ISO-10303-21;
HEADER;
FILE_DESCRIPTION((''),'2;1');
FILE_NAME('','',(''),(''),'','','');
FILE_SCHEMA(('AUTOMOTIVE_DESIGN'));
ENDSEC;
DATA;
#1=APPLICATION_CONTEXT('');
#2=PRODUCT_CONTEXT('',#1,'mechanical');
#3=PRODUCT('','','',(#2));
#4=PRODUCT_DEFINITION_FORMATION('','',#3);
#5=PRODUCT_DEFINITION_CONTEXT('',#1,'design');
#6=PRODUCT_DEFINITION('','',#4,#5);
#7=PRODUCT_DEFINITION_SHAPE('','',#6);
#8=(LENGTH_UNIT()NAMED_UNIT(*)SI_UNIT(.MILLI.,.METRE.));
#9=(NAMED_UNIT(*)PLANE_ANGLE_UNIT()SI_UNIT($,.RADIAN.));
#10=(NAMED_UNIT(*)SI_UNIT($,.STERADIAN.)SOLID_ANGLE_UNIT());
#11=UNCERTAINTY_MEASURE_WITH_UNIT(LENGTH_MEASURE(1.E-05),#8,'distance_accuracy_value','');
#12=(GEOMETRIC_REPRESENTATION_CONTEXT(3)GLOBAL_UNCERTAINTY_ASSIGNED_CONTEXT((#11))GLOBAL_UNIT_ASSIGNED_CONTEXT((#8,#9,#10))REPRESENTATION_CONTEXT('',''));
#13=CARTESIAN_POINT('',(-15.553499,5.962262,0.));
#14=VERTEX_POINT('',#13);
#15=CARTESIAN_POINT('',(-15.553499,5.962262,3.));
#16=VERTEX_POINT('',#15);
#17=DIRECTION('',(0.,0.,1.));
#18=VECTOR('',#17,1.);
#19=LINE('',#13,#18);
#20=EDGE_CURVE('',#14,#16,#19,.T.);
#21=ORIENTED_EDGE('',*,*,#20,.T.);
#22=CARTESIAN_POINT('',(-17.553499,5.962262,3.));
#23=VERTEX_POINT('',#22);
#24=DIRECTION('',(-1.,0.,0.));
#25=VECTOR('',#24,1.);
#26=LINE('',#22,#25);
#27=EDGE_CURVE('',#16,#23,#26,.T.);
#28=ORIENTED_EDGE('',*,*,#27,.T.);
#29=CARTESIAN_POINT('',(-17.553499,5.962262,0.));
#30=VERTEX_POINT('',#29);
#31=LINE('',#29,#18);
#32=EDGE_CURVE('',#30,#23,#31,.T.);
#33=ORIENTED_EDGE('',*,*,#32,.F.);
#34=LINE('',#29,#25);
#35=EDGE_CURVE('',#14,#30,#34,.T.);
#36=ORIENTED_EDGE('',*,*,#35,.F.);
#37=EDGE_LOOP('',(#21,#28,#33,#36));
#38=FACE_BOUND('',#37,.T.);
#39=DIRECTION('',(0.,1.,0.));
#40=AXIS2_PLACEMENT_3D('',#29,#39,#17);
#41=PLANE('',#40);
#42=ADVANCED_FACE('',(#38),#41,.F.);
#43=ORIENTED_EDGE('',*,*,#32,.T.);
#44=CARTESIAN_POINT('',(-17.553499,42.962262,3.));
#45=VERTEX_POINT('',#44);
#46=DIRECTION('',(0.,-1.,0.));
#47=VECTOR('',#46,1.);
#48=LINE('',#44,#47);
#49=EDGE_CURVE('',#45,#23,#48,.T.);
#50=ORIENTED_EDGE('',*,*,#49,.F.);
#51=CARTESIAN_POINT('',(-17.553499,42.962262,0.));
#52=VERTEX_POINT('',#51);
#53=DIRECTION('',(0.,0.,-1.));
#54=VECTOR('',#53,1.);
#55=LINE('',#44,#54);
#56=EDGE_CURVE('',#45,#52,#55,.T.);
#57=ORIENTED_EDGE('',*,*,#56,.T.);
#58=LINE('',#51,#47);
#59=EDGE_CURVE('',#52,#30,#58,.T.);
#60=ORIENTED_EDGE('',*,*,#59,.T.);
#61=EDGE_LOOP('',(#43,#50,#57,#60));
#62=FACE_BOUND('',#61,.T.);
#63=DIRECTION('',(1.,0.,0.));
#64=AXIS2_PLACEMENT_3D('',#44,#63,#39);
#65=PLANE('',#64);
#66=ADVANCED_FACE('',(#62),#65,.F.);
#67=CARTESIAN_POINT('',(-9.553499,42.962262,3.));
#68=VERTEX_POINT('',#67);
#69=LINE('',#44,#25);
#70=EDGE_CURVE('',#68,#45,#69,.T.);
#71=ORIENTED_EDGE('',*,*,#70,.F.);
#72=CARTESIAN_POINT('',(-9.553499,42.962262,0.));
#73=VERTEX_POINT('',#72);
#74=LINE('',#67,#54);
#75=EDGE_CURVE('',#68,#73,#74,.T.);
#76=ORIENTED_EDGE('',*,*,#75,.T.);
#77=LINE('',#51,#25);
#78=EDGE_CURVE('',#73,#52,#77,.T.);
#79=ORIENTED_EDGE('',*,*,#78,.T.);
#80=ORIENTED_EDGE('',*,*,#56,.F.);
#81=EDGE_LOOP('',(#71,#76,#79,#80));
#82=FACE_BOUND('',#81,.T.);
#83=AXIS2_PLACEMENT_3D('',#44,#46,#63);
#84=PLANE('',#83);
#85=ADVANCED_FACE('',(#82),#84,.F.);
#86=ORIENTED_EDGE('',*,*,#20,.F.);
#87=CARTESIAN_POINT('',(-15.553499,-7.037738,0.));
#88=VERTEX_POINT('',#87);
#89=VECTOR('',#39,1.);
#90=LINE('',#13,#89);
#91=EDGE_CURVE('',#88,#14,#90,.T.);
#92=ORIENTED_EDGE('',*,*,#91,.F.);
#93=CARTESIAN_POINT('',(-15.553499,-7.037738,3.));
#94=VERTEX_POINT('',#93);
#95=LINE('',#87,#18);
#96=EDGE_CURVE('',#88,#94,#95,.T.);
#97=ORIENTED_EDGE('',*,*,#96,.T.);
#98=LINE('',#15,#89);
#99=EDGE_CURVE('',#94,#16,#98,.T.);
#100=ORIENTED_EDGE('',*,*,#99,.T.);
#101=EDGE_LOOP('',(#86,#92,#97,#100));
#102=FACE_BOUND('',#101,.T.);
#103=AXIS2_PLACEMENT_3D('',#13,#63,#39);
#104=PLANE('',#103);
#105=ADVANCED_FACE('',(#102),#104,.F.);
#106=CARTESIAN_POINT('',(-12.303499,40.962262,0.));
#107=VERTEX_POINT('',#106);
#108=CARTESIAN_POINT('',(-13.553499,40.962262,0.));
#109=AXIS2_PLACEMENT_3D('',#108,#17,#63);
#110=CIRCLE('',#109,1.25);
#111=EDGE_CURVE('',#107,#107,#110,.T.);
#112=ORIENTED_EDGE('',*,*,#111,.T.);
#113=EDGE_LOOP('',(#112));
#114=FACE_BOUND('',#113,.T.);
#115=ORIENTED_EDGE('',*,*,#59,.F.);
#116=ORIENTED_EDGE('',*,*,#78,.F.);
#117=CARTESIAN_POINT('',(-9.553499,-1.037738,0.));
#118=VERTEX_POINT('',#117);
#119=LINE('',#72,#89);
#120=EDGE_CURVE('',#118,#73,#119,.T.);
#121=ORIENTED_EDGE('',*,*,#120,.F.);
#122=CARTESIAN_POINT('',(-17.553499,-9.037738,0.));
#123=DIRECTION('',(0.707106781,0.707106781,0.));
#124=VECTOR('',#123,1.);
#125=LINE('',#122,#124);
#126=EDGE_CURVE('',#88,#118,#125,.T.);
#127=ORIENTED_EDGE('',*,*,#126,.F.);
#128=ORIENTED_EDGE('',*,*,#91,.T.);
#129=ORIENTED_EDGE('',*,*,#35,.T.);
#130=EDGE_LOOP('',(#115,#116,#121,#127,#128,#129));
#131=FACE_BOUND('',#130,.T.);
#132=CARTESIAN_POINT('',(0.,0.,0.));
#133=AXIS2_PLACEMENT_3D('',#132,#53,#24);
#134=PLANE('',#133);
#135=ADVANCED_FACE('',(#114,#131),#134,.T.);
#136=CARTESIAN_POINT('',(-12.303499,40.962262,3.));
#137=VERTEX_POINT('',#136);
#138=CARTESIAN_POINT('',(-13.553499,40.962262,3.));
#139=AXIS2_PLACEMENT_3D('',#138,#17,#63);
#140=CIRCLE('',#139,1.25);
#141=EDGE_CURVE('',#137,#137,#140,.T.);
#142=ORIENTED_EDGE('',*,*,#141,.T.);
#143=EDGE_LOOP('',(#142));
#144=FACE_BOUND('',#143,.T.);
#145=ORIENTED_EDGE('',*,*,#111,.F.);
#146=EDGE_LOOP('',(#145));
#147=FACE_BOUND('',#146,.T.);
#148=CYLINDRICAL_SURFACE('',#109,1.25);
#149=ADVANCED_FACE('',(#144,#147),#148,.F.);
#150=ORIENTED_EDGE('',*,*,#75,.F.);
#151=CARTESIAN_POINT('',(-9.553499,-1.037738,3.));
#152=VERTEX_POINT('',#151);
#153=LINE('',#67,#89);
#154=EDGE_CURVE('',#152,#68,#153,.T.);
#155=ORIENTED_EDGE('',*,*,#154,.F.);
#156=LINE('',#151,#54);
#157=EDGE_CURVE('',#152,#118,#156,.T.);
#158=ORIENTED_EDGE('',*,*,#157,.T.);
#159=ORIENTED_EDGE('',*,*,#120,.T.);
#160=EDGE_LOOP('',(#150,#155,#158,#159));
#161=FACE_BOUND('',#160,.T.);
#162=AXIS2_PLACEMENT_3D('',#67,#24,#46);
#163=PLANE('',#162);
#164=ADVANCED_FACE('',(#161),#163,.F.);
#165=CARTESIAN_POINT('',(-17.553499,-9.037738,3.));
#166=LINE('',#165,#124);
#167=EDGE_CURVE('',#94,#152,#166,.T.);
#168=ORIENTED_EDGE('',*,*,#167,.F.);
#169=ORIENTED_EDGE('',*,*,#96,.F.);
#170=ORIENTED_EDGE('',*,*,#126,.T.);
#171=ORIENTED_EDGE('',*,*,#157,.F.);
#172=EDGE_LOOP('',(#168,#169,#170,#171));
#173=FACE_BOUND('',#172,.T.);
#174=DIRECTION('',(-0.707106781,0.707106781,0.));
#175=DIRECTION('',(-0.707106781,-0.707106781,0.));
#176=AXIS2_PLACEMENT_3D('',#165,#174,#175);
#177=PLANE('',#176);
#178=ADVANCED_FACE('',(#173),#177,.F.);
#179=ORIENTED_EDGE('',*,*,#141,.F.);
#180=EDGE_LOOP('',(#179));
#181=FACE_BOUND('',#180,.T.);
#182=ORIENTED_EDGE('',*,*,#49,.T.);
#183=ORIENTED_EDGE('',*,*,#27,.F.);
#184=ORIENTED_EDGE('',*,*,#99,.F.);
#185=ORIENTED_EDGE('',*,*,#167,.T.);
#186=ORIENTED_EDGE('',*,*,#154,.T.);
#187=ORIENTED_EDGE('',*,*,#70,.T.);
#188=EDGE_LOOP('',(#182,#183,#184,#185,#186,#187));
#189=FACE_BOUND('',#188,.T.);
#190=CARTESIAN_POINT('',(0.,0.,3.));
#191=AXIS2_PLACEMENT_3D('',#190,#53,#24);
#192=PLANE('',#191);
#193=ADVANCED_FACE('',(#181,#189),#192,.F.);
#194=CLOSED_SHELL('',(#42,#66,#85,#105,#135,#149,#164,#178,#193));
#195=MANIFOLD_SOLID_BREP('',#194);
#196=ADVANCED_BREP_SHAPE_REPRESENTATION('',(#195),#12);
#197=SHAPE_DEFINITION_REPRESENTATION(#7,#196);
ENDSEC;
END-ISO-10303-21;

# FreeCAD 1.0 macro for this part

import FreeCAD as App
import Part
import Sketcher

V = App.Vector
Q = App.Units.Quantity


def add_polygon(sketch, points):
    """Adds a closed chain of lines whose ends are joined by coincident constraints."""
    first, n = sketch.GeometryCount, len(points)
    for a, b in zip(points, points[1:] + points[:1]):
        sketch.addGeometry(Part.LineSegment(App.Vector(*a, 0), App.Vector(*b, 0)), False)
    for i in range(n):
        sketch.addConstraint(Sketcher.Constraint("Coincident", first + i, 2, first + (i + 1) % n, 1))

doc = App.newDocument("Part")
body = doc.addObject("PartDesign::Body", "Body")

sketch1 = doc.addObject("Sketcher::SketchObject", "Sketch")
body.addObject(sketch1)
sketch1.AttachmentSupport = (doc.XY_Plane, [""])
sketch1.MapMode = "FlatFace"
add_polygon(sketch1, [(-10, -1), (-10, 43), (-18, 43), (-18, -9)])
sketch1.addConstraint([
    Sketcher.Constraint("Vertical", 0),
    Sketcher.Constraint("Horizontal", 1),
    Sketcher.Constraint("Vertical", 2),
    Sketcher.Constraint("DistanceX", 1, 2, 1, 1, Q("8 mm")),
    Sketcher.Constraint("DistanceY", 0, 1, 0, 2, Q("44 mm")),
    Sketcher.Constraint("DistanceY", 2, 2, 2, 1, Q("52 mm")),
    Sketcher.Constraint("DistanceX", 0, 2, -1, 1, Q("9.553499 mm")),
    Sketcher.Constraint("DistanceY", -1, 1, 0, 2, Q("42.962262 mm")),
])
pad1 = doc.addObject("PartDesign::Pad", "Pad")
body.addObject(pad1)
pad1.Profile = sketch1
pad1.Length = 3

sketch2 = doc.addObject("Sketcher::SketchObject", "Sketch001")
body.addObject(sketch2)
sketch2.AttachmentSupport = (doc.XY_Plane, [""])
sketch2.MapMode = "FlatFace"
sketch2.AttachmentOffset = App.Placement(V(0, 0, 3), App.Rotation())
sketch2.addGeometry(Part.Circle(V(-13.6, 41, 0), V(0, 0, 1), 1.2), False)
add_polygon(sketch2, [(-17.6, 6), (-17.6, -9), (-15.6, -7), (-15.6, 6)])
sketch2.addConstraint([
    Sketcher.Constraint("Vertical", 1),
    Sketcher.Constraint("Vertical", 3),
    Sketcher.Constraint("Horizontal", 4),
    Sketcher.Constraint("Diameter", 0, Q("2.5 mm")),
    Sketcher.Constraint("DistanceX", 4, 2, 4, 1, Q("2 mm")),
    Sketcher.Constraint("DistanceY", 1, 2, 1, 1, Q("15 mm")),
    Sketcher.Constraint("DistanceY", 3, 1, 3, 2, Q("13 mm")),
    Sketcher.Constraint("DistanceX", 1, 2, 0, 3, Q("4 mm")),
    Sketcher.Constraint("DistanceY", 1, 2, 0, 3, Q("50 mm")),
    Sketcher.Constraint("DistanceX", 0, 3, -1, 1, Q("13.553499 mm")),
    Sketcher.Constraint("DistanceY", -1, 1, 0, 3, Q("40.962262 mm")),
])
pocket1 = doc.addObject("PartDesign::Pocket", "Pocket")
body.addObject(pocket1)
pocket1.Profile = sketch2
pocket1.Length = 3

doc.recompute()
